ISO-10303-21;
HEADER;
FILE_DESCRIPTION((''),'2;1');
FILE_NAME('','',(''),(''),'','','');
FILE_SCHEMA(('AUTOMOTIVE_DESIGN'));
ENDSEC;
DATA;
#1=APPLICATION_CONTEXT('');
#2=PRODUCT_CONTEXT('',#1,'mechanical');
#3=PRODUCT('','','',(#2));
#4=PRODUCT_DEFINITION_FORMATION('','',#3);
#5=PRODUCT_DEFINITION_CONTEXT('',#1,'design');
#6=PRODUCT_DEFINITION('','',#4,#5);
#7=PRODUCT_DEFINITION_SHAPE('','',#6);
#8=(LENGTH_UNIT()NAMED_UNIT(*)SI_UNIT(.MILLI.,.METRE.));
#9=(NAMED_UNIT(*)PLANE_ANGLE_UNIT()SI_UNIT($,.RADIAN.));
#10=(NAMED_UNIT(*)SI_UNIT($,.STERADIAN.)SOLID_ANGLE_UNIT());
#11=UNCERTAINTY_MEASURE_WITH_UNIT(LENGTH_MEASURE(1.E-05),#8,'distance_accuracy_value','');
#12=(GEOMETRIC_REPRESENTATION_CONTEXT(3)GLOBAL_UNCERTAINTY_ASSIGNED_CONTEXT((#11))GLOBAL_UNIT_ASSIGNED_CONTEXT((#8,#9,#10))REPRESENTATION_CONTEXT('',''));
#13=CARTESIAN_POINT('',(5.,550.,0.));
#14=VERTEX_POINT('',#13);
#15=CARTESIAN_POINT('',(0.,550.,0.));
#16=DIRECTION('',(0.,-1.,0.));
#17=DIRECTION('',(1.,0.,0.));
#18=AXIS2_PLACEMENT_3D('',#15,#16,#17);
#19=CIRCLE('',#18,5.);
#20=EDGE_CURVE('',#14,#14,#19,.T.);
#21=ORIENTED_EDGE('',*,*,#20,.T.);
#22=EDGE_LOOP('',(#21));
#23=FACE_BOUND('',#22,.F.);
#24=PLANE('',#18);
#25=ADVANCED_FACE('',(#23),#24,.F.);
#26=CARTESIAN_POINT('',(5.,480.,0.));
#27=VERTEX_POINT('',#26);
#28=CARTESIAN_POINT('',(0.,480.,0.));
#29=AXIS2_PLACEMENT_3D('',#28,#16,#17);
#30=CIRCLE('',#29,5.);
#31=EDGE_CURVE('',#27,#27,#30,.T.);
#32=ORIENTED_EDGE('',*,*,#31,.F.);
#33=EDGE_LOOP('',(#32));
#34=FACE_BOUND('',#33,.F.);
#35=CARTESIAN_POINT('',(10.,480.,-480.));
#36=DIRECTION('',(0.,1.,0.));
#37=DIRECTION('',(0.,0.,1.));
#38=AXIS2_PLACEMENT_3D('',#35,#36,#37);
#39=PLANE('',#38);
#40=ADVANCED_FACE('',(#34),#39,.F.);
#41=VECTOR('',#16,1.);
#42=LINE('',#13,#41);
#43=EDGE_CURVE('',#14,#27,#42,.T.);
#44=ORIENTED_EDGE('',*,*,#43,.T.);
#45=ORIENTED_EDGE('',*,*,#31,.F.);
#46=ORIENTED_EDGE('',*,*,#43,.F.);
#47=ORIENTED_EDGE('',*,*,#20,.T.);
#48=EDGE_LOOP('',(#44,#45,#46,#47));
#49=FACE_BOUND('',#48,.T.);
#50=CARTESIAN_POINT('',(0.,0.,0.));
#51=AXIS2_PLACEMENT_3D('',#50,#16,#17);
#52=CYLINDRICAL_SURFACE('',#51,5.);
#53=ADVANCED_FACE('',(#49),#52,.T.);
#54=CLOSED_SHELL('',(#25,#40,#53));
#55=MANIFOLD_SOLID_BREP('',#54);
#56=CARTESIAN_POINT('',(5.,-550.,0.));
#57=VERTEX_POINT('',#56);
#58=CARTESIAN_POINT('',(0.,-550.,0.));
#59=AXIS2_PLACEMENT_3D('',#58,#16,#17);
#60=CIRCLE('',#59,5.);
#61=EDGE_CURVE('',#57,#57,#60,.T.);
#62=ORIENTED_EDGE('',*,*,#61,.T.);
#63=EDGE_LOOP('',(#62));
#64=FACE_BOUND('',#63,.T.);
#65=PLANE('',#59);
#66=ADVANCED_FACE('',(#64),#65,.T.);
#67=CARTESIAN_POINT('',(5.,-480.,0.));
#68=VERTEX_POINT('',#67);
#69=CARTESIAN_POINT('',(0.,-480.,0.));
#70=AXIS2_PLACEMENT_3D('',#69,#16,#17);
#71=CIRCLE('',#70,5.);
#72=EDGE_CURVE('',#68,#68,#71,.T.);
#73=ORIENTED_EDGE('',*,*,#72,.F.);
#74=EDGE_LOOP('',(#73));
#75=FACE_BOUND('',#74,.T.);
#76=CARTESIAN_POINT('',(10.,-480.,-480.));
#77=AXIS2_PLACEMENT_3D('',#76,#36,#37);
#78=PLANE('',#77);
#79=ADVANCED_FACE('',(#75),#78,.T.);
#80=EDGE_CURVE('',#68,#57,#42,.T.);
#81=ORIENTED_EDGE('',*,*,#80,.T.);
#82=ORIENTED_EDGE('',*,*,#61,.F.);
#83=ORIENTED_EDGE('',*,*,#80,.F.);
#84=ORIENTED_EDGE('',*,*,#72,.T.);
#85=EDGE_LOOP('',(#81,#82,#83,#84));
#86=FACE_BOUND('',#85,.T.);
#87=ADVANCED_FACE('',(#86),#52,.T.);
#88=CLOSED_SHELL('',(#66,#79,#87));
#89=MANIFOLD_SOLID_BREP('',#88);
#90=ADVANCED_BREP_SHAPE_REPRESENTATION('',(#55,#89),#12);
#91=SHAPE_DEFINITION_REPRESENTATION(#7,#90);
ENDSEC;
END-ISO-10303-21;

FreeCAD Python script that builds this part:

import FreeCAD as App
import Part
import Sketcher

doc = App.newDocument("Part")
body = doc.addObject("PartDesign::Body", "Body")

sketch1 = doc.addObject("Sketcher::SketchObject", "Sketch")
body.addObject(sketch1)
sketch1.AttachmentSupport = (doc.YZ_Plane, [""])
sketch1.MapMode = "FlatFace"
sketch1.AttachmentOffset = App.Placement(App.Vector(0, 0, 10), App.Rotation())
sketch1.addGeometry([
    Part.LineSegment(App.Vector(-480, 480, 0), App.Vector(-480, -480, 0)),
    Part.LineSegment(App.Vector(-480, -480, 0), App.Vector(480, -480, 0)),
    Part.LineSegment(App.Vector(480, -480, 0), App.Vector(480, 480, 0)),
    Part.LineSegment(App.Vector(480, 480, 0), App.Vector(-480, 480, 0)),
], False)
sketch1.addConstraint([
    Sketcher.Constraint("Coincident", 0, 2, 1, 1),
    Sketcher.Constraint("Coincident", 1, 2, 2, 1),
    Sketcher.Constraint("Coincident", 2, 2, 3, 1),
    Sketcher.Constraint("Coincident", 3, 2, 0, 1),
    Sketcher.Constraint("Vertical", 0),
    Sketcher.Constraint("Horizontal", 1),
    Sketcher.Constraint("Vertical", 2),
    Sketcher.Constraint("Horizontal", 3),
    Sketcher.Constraint("Symmetric", 0, 2, 2, 2, -1, 1),
    Sketcher.Constraint("Equal", 3, 0),
    Sketcher.Constraint("DistanceX", 1, 1, 1, 2, 960.0),
])
pad1 = doc.addObject("PartDesign::Pad", "Pad")
body.addObject(pad1)
pad1.Profile = sketch1
pad1.Length = 30
pad1.Reversed = True
body2 = doc.addObject("PartDesign::Body", "Body001")
body2.AllowCompound = True

sketch2 = doc.addObject("Sketcher::SketchObject", "Sketch001")
body2.addObject(sketch2)
sketch2.AttachmentSupport = (doc.getObject("XZ_Plane001"), [""])
sketch2.MapMode = "FlatFace"
sketch2.addGeometry(Part.Circle(App.Vector(0, 0, 0), App.Vector(0, 0, 1), 5), False)
sketch2.addConstraint([
    Sketcher.Constraint("Coincident", 0, 3, -1, 1),
    Sketcher.Constraint("Diameter", 0, 10.0),
])
pad2 = doc.addObject("PartDesign::Pad", "Pad001")
body2.addObject(pad2)
pad2.Profile = sketch2
pad2.Length = 1100
pad2.Midplane = True
doc.recompute()

boolean = doc.addObject("PartDesign::Boolean", "Boolean")
body2.addObject(boolean)
boolean.Type = "Cut"
boolean.addObjects([body])

doc.recompute()
